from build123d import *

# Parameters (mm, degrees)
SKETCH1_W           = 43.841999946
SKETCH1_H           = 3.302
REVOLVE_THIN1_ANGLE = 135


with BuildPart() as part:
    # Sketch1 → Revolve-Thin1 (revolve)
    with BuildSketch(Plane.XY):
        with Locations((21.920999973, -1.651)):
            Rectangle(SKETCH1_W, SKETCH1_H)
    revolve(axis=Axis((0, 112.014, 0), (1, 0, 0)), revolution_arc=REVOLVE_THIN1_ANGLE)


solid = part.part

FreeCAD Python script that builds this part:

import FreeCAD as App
import Part
import Sketcher
from FreeCAD import Vector
Q = App.Units.Quantity


def add_polygon(sketch, points):
    """Adds a closed chain of lines whose ends are joined by coincident constraints."""
    first, n = sketch.GeometryCount, len(points)
    for a, b in zip(points, points[1:] + points[:1]):
        sketch.addGeometry(Part.LineSegment(App.Vector(*a, 0), App.Vector(*b, 0)), False)
    for i in range(n):
        sketch.addConstraint(Sketcher.Constraint("Coincident", first + i, 2, first + (i + 1) % n, 1))

doc = App.newDocument("Part")
body = doc.addObject("PartDesign::Body", "Body")

sketch1 = body.newObject("Sketcher::SketchObject", "Sketch")
sketch1.AttachmentSupport = (doc.getObject("XY_Plane"), [""])
sketch1.MapMode = "FlatFace"
add_polygon(sketch1, [(0, 0), (0, -3.302), (43.842, -3.302), (43.842, 0)])
sketch1.addGeometry(Part.LineSegment(Vector(0, 112.014, 0), Vector(43.842, 112.014, 0)), True)
sketch1.addConstraint(Sketcher.Constraint("Vertical", 0))
sketch1.addConstraint(Sketcher.Constraint("Horizontal", 1))
sketch1.addConstraint(Sketcher.Constraint("Vertical", 2))
sketch1.addConstraint(Sketcher.Constraint("Horizontal", 3))
sketch1.addConstraint(Sketcher.Constraint("Horizontal", 4))
sketch1.addConstraint(Sketcher.Constraint("Coincident", 3, 2, -1, 1))
sketch1.addConstraint(Sketcher.Constraint("PointOnObject", 4, 1, -2))
sketch1.addConstraint(Sketcher.Constraint("Vertical", 2, 2, 4, 2))
sketch1.addConstraint(Sketcher.Constraint("DistanceY", 0, 2, 0, 1, Q("0.13 in")))
sketch1.addConstraint(Sketcher.Constraint("DistanceY", -1, 1, 4, 1, Q("4.41 in")))
sketch1.addConstraint(Sketcher.Constraint("DistanceX", 1, 1, 1, 2, 43.842))
revolution = body.newObject("PartDesign::Revolution", "Revolution")
revolution.Profile = sketch1
revolution.ReferenceAxis = (sketch1, ["Axis0"])
revolution.Angle = 135

doc.recompute()
